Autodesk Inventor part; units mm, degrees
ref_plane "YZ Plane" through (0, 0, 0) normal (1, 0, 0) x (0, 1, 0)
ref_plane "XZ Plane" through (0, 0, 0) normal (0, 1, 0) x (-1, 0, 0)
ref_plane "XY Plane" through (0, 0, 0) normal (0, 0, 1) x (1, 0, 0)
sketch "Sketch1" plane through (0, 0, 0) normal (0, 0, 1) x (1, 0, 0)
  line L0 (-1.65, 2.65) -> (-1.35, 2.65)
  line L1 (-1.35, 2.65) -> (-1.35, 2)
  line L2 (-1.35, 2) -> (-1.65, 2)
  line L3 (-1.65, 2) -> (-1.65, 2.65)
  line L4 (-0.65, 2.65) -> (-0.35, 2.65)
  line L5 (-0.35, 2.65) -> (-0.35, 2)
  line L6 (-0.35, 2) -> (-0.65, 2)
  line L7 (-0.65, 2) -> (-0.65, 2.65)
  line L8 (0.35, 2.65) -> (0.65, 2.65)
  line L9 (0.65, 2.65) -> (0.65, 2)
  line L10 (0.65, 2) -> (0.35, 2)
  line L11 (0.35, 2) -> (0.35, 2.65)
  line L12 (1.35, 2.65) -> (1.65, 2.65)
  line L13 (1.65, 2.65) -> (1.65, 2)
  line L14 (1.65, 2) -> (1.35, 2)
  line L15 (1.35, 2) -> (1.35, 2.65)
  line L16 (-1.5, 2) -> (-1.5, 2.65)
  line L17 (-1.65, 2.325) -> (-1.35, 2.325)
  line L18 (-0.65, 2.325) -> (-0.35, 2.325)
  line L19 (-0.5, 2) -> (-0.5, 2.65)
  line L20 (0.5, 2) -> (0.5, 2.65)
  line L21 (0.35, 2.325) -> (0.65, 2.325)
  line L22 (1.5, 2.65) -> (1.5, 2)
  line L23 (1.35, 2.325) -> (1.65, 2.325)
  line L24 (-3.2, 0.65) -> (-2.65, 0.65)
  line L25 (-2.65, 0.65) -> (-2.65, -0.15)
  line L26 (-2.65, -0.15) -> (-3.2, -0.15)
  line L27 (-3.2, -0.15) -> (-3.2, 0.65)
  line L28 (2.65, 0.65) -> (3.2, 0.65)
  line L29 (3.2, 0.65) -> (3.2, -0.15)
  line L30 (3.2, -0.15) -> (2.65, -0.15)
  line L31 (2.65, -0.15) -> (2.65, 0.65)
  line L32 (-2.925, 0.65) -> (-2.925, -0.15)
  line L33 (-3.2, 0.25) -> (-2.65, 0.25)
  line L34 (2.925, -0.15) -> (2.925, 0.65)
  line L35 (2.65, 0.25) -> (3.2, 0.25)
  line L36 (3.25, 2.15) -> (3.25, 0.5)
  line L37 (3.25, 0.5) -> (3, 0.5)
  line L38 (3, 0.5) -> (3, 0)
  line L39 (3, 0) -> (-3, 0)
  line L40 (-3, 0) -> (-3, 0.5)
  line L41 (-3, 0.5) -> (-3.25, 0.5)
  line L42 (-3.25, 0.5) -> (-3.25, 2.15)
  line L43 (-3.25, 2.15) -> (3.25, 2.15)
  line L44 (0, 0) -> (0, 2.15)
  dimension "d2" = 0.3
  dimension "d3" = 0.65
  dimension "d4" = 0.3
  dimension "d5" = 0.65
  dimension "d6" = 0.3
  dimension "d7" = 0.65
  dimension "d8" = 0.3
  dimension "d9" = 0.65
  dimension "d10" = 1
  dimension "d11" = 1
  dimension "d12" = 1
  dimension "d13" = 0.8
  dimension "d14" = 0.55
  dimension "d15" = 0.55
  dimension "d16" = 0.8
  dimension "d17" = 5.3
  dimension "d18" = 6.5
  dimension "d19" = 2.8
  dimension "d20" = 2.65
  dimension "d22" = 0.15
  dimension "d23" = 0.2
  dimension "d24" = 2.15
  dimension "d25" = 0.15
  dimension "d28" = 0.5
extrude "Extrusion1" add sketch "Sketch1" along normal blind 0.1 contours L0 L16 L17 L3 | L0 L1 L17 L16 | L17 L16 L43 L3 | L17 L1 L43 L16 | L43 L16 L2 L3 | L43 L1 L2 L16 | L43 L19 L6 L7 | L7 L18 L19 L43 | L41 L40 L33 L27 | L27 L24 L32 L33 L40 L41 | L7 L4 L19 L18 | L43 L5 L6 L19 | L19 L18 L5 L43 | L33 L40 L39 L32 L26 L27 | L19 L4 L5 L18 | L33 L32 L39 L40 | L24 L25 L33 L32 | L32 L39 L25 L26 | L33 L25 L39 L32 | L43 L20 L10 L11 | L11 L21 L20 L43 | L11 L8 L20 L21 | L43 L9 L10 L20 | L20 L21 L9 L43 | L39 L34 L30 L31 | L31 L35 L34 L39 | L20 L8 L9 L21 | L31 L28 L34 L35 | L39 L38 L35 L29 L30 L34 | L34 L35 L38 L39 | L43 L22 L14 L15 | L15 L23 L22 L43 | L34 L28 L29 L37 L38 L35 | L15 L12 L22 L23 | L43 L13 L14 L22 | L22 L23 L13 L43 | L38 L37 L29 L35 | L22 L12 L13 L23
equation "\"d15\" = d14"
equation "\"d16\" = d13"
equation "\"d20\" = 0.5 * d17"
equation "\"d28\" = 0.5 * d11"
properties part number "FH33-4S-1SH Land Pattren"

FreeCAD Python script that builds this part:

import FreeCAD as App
import Part
import Sketcher

V = App.Vector

doc = App.newDocument("Part")
body = doc.addObject("PartDesign::Body", "Body")
body.AllowCompound = True

# Sketch on XY plane
sketch1 = doc.addObject("Sketcher::SketchObject", "Sketch")
body.addObject(sketch1)
sketch1.AttachmentSupport = (doc.XY_Plane, [""])
sketch1.MapMode = "FlatFace"
sketch1.addGeometry([
    Part.LineSegment(V(-1.65, 2.65, 0), V(-1.65, 2, 0)),  # 0
    Part.LineSegment(V(-1.65, 2, 0), V(-1.35, 2, 0)),  # 1
    Part.LineSegment(V(-1.35, 2, 0), V(-1.35, 2.65, 0)),  # 2
    Part.LineSegment(V(-1.35, 2.65, 0), V(-1.65, 2.65, 0)),  # 3
    Part.LineSegment(V(-0.65, 2, 0), V(-0.35, 2, 0)),  # 4
    Part.LineSegment(V(-0.35, 2, 0), V(-0.35, 2.65, 0)),  # 5
    Part.LineSegment(V(-0.35, 2.65, 0), V(-0.65, 2.65, 0)),  # 6
    Part.LineSegment(V(-0.65, 2.65, 0), V(-0.65, 2, 0)),  # 7
    Part.LineSegment(V(-3.2, -0.15, 0), V(-2.65, -0.15, 0)),  # 8
    Part.LineSegment(V(-2.65, -0.15, 0), V(-2.65, 0.65, 0)),  # 9
    Part.LineSegment(V(-2.65, 0.65, 0), V(-3.2, 0.65, 0)),  # 10
    Part.LineSegment(V(-3.2, 0.65, 0), V(-3.2, -0.15, 0)),  # 11
    Part.LineSegment(V(0.35, 2, 0), V(0.65, 2, 0)),  # 12
    Part.LineSegment(V(0.65, 2, 0), V(0.65, 2.65, 0)),  # 13
    Part.LineSegment(V(0.65, 2.65, 0), V(0.35, 2.65, 0)),  # 14
    Part.LineSegment(V(0.35, 2.65, 0), V(0.35, 2, 0)),  # 15
    Part.LineSegment(V(2.65, -0.15, 0), V(3.2, -0.15, 0)),  # 16
    Part.LineSegment(V(3.2, -0.15, 0), V(3.2, 0.65, 0)),  # 17
    Part.LineSegment(V(3.2, 0.65, 0), V(2.65, 0.65, 0)),  # 18
    Part.LineSegment(V(2.65, 0.65, 0), V(2.65, -0.15, 0)),  # 19
    Part.LineSegment(V(1.35, 2, 0), V(1.65, 2, 0)),  # 20
    Part.LineSegment(V(1.65, 2, 0), V(1.65, 2.65, 0)),  # 21
    Part.LineSegment(V(1.65, 2.65, 0), V(1.35, 2.65, 0)),  # 22
    Part.LineSegment(V(1.35, 2.65, 0), V(1.35, 2, 0)),  # 23
], False)
sketch1.addConstraint([
    Sketcher.Constraint("Coincident", 0, 2, 1, 1),
    Sketcher.Constraint("Coincident", 1, 2, 2, 1),
    Sketcher.Constraint("Coincident", 2, 2, 3, 1),
    Sketcher.Constraint("Coincident", 3, 2, 0, 1),
    Sketcher.Constraint("Coincident", 4, 2, 5, 1),
    Sketcher.Constraint("Coincident", 5, 2, 6, 1),
    Sketcher.Constraint("Coincident", 6, 2, 7, 1),
    Sketcher.Constraint("Coincident", 7, 2, 4, 1),
    Sketcher.Constraint("Coincident", 8, 2, 9, 1),
    Sketcher.Constraint("Coincident", 9, 2, 10, 1),
    Sketcher.Constraint("Coincident", 10, 2, 11, 1),
    Sketcher.Constraint("Coincident", 11, 2, 8, 1),
    Sketcher.Constraint("Coincident", 12, 2, 13, 1),
    Sketcher.Constraint("Coincident", 13, 2, 14, 1),
    Sketcher.Constraint("Coincident", 14, 2, 15, 1),
    Sketcher.Constraint("Coincident", 15, 2, 12, 1),
    Sketcher.Constraint("Coincident", 16, 2, 17, 1),
    Sketcher.Constraint("Coincident", 17, 2, 18, 1),
    Sketcher.Constraint("Coincident", 18, 2, 19, 1),
    Sketcher.Constraint("Coincident", 19, 2, 16, 1),
    Sketcher.Constraint("Coincident", 20, 2, 21, 1),
    Sketcher.Constraint("Coincident", 21, 2, 22, 1),
    Sketcher.Constraint("Coincident", 22, 2, 23, 1),
    Sketcher.Constraint("Coincident", 23, 2, 20, 1),
    Sketcher.Constraint("Vertical", 0),
    Sketcher.Constraint("Horizontal", 1),
    Sketcher.Constraint("Vertical", 2),
    Sketcher.Constraint("Horizontal", 3),
    Sketcher.Constraint("Horizontal", 4),
    Sketcher.Constraint("Vertical", 5),
    Sketcher.Constraint("Horizontal", 6),
    Sketcher.Constraint("Vertical", 7),
    Sketcher.Constraint("Horizontal", 8),
    Sketcher.Constraint("Vertical", 9),
    Sketcher.Constraint("Horizontal", 10),
    Sketcher.Constraint("Vertical", 11),
    Sketcher.Constraint("Horizontal", 12),
    Sketcher.Constraint("Vertical", 13),
    Sketcher.Constraint("Horizontal", 14),
    Sketcher.Constraint("Vertical", 15),
    Sketcher.Constraint("Horizontal", 16),
    Sketcher.Constraint("Vertical", 17),
    Sketcher.Constraint("Horizontal", 18),
    Sketcher.Constraint("Vertical", 19),
    Sketcher.Constraint("Horizontal", 20),
    Sketcher.Constraint("Vertical", 21),
    Sketcher.Constraint("Horizontal", 22),
    Sketcher.Constraint("Vertical", 23),
    Sketcher.Constraint("Symmetric", 7, 2, 12, 2, -2),
    Sketcher.Constraint("Symmetric", 5, 2, 14, 2, -2),
    Sketcher.Constraint("Symmetric", 11, 2, 16, 2, -2),
    Sketcher.Constraint("Symmetric", 9, 2, 18, 2, -2),
    Sketcher.Constraint("Symmetric", 0, 2, 20, 2, -2),
    Sketcher.Constraint("Symmetric", 2, 2, 22, 2, -2),
    Sketcher.Constraint("Horizontal", 1, 2, 4, 2),
    Sketcher.Constraint("Horizontal", 3, 2, 5, 2),
    Sketcher.Constraint("Equal", 3, 4),
    Sketcher.Constraint("DistanceX", 1, 1, 1, 2, 0.3),
    Sketcher.Constraint("DistanceY", 9, 1, 9, 2, 0.8),
    Sketcher.Constraint("DistanceX", 1, 2, 4, 2, 1.0),
    Sketcher.Constraint("DistanceX", 8, 2, 0, 2, 1.0),
    Sketcher.Constraint("DistanceX", 4, 2, 12, 2, 1.0),
    Sketcher.Constraint("DistanceX", 8, 1, 8, 2, 0.55),
    Sketcher.Constraint("DistanceY", 0, 2, 0, 1, 0.65),
    Sketcher.Constraint("DistanceY", 8, 2, 3, 2, 2.8),
    Sketcher.Constraint("DistanceY", -1, 1, 2, 2, 2.65),
])
pad1 = doc.addObject("PartDesign::Pad", "Pad")
body.addObject(pad1)
pad1.Profile = sketch1
pad1.Length = 0.1

doc.recompute()
